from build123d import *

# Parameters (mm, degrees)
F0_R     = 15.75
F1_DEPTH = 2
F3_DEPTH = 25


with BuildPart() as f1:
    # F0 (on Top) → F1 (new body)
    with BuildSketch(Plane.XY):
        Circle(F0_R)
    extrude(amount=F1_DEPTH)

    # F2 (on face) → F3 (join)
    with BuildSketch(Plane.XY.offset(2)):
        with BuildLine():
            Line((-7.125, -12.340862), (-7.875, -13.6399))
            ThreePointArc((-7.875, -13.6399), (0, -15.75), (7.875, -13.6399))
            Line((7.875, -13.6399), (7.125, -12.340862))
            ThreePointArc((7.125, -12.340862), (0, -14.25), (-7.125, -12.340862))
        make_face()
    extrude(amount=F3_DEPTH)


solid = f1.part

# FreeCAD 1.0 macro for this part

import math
import FreeCAD as App
import Part
import Sketcher
from FreeCAD import Vector
Q = App.Units.Quantity

doc = App.newDocument("Part")
params = doc.addObject("Spreadsheet::Sheet", "Params")
for row, (alias, value) in enumerate([
    ("sketch1_diameter", "31.5 mm"),
    ("pad1_length", "2 mm"),
    ("sketch2_radius", "15.749999 mm"),
    ("sketch2_radius2", "14.25 mm"),
    ("pad2_length", "25 mm"),
], start=1):
    params.set(f"A{row}", alias)
    params.set(f"B{row}", "=" + value)
    params.setAlias(f"B{row}", alias)

body = doc.addObject("PartDesign::Body", "Body")

# Sketch on XY plane
sketch1 = body.newObject("Sketcher::SketchObject", "Sketch")
sketch1.AttachmentSupport = (doc.getObject("XY_Plane"), [""])
sketch1.MapMode = "FlatFace"
sketch1.addGeometry(Part.Circle(Vector(0, 0, 0), Vector(0, 0, 1), 15.75), False)
sketch1.addConstraint(Sketcher.Constraint("Coincident", 0, 3, -1, 1))
sketch1.addConstraint(Sketcher.Constraint("Diameter", 0, Q("31.5 mm")))
sketch1.setExpression("Constraints[1]", "Params.sketch1_diameter")
pad1 = body.newObject("PartDesign::Pad", "Pad")
pad1.Profile = sketch1
pad1.setExpression("Length", "Params.pad1_length")

# Sketch on XY plane
sketch2 = body.newObject("Sketcher::SketchObject", "Sketch001")
sketch2.AttachmentSupport = (doc.getObject("XY_Plane"), [""])
sketch2.MapMode = "FlatFace"
sketch2.AttachmentOffset = App.Placement(Vector(0, 0, 2), App.Rotation())
sketch2.addGeometry(Part.LineSegment(Vector(-7.125, -12.340862, 0), Vector(-7.875, -13.6399, 0)), False)
sketch2.addGeometry(Part.ArcOfCircle(Part.Circle(Vector(0, -0.000001, 0), Vector(0, 0, 1), 15.749999), math.radians(-120.000001), math.radians(-59.999999)), False)
sketch2.addGeometry(Part.LineSegment(Vector(7.875, -13.6399, 0), Vector(7.125, -12.340862, 0)), False)
sketch2.addGeometry(Part.ArcOfCircle(Part.Circle(Vector(0, 0, 0), Vector(0, 0, 1), 14.25), math.radians(-120), math.radians(-60)), False)
sketch2.addConstraint(Sketcher.Constraint("Coincident", 0, 2, 1, 1))
sketch2.addConstraint(Sketcher.Constraint("Coincident", 1, 2, 2, 1))
sketch2.addConstraint(Sketcher.Constraint("Coincident", 2, 2, 3, 2))
sketch2.addConstraint(Sketcher.Constraint("Coincident", 3, 1, 0, 1))
sketch2.addConstraint(Sketcher.Constraint("Coincident", 1, 3, -1, 1))
sketch2.addConstraint(Sketcher.Constraint("Coincident", 3, 3, -1, 1))
sketch2.addConstraint(Sketcher.Constraint("Horizontal", 0, 2, 1, 2))
sketch2.addConstraint(Sketcher.Constraint("Horizontal", 2, 2, 3, 1))
sketch2.addConstraint(Sketcher.Constraint("Angle", 0, Q("-120.000002 deg")))
sketch2.addConstraint(Sketcher.Constraint("Radius", 1, Q("15.749999 mm")))
sketch2.addConstraint(Sketcher.Constraint("Radius", 3, Q("14.25 mm")))
sketch2.addConstraint(Sketcher.Constraint("DistanceX", 0, 2, 2, 2, Q("15 mm")))
sketch2.setExpression("Constraints[9]", "Params.sketch2_radius")
sketch2.setExpression("Constraints[10]", "Params.sketch2_radius2")
pad2 = body.newObject("PartDesign::Pad", "Pad001")
pad2.Profile = sketch2
pad2.setExpression("Length", "Params.pad2_length")

doc.recompute()
